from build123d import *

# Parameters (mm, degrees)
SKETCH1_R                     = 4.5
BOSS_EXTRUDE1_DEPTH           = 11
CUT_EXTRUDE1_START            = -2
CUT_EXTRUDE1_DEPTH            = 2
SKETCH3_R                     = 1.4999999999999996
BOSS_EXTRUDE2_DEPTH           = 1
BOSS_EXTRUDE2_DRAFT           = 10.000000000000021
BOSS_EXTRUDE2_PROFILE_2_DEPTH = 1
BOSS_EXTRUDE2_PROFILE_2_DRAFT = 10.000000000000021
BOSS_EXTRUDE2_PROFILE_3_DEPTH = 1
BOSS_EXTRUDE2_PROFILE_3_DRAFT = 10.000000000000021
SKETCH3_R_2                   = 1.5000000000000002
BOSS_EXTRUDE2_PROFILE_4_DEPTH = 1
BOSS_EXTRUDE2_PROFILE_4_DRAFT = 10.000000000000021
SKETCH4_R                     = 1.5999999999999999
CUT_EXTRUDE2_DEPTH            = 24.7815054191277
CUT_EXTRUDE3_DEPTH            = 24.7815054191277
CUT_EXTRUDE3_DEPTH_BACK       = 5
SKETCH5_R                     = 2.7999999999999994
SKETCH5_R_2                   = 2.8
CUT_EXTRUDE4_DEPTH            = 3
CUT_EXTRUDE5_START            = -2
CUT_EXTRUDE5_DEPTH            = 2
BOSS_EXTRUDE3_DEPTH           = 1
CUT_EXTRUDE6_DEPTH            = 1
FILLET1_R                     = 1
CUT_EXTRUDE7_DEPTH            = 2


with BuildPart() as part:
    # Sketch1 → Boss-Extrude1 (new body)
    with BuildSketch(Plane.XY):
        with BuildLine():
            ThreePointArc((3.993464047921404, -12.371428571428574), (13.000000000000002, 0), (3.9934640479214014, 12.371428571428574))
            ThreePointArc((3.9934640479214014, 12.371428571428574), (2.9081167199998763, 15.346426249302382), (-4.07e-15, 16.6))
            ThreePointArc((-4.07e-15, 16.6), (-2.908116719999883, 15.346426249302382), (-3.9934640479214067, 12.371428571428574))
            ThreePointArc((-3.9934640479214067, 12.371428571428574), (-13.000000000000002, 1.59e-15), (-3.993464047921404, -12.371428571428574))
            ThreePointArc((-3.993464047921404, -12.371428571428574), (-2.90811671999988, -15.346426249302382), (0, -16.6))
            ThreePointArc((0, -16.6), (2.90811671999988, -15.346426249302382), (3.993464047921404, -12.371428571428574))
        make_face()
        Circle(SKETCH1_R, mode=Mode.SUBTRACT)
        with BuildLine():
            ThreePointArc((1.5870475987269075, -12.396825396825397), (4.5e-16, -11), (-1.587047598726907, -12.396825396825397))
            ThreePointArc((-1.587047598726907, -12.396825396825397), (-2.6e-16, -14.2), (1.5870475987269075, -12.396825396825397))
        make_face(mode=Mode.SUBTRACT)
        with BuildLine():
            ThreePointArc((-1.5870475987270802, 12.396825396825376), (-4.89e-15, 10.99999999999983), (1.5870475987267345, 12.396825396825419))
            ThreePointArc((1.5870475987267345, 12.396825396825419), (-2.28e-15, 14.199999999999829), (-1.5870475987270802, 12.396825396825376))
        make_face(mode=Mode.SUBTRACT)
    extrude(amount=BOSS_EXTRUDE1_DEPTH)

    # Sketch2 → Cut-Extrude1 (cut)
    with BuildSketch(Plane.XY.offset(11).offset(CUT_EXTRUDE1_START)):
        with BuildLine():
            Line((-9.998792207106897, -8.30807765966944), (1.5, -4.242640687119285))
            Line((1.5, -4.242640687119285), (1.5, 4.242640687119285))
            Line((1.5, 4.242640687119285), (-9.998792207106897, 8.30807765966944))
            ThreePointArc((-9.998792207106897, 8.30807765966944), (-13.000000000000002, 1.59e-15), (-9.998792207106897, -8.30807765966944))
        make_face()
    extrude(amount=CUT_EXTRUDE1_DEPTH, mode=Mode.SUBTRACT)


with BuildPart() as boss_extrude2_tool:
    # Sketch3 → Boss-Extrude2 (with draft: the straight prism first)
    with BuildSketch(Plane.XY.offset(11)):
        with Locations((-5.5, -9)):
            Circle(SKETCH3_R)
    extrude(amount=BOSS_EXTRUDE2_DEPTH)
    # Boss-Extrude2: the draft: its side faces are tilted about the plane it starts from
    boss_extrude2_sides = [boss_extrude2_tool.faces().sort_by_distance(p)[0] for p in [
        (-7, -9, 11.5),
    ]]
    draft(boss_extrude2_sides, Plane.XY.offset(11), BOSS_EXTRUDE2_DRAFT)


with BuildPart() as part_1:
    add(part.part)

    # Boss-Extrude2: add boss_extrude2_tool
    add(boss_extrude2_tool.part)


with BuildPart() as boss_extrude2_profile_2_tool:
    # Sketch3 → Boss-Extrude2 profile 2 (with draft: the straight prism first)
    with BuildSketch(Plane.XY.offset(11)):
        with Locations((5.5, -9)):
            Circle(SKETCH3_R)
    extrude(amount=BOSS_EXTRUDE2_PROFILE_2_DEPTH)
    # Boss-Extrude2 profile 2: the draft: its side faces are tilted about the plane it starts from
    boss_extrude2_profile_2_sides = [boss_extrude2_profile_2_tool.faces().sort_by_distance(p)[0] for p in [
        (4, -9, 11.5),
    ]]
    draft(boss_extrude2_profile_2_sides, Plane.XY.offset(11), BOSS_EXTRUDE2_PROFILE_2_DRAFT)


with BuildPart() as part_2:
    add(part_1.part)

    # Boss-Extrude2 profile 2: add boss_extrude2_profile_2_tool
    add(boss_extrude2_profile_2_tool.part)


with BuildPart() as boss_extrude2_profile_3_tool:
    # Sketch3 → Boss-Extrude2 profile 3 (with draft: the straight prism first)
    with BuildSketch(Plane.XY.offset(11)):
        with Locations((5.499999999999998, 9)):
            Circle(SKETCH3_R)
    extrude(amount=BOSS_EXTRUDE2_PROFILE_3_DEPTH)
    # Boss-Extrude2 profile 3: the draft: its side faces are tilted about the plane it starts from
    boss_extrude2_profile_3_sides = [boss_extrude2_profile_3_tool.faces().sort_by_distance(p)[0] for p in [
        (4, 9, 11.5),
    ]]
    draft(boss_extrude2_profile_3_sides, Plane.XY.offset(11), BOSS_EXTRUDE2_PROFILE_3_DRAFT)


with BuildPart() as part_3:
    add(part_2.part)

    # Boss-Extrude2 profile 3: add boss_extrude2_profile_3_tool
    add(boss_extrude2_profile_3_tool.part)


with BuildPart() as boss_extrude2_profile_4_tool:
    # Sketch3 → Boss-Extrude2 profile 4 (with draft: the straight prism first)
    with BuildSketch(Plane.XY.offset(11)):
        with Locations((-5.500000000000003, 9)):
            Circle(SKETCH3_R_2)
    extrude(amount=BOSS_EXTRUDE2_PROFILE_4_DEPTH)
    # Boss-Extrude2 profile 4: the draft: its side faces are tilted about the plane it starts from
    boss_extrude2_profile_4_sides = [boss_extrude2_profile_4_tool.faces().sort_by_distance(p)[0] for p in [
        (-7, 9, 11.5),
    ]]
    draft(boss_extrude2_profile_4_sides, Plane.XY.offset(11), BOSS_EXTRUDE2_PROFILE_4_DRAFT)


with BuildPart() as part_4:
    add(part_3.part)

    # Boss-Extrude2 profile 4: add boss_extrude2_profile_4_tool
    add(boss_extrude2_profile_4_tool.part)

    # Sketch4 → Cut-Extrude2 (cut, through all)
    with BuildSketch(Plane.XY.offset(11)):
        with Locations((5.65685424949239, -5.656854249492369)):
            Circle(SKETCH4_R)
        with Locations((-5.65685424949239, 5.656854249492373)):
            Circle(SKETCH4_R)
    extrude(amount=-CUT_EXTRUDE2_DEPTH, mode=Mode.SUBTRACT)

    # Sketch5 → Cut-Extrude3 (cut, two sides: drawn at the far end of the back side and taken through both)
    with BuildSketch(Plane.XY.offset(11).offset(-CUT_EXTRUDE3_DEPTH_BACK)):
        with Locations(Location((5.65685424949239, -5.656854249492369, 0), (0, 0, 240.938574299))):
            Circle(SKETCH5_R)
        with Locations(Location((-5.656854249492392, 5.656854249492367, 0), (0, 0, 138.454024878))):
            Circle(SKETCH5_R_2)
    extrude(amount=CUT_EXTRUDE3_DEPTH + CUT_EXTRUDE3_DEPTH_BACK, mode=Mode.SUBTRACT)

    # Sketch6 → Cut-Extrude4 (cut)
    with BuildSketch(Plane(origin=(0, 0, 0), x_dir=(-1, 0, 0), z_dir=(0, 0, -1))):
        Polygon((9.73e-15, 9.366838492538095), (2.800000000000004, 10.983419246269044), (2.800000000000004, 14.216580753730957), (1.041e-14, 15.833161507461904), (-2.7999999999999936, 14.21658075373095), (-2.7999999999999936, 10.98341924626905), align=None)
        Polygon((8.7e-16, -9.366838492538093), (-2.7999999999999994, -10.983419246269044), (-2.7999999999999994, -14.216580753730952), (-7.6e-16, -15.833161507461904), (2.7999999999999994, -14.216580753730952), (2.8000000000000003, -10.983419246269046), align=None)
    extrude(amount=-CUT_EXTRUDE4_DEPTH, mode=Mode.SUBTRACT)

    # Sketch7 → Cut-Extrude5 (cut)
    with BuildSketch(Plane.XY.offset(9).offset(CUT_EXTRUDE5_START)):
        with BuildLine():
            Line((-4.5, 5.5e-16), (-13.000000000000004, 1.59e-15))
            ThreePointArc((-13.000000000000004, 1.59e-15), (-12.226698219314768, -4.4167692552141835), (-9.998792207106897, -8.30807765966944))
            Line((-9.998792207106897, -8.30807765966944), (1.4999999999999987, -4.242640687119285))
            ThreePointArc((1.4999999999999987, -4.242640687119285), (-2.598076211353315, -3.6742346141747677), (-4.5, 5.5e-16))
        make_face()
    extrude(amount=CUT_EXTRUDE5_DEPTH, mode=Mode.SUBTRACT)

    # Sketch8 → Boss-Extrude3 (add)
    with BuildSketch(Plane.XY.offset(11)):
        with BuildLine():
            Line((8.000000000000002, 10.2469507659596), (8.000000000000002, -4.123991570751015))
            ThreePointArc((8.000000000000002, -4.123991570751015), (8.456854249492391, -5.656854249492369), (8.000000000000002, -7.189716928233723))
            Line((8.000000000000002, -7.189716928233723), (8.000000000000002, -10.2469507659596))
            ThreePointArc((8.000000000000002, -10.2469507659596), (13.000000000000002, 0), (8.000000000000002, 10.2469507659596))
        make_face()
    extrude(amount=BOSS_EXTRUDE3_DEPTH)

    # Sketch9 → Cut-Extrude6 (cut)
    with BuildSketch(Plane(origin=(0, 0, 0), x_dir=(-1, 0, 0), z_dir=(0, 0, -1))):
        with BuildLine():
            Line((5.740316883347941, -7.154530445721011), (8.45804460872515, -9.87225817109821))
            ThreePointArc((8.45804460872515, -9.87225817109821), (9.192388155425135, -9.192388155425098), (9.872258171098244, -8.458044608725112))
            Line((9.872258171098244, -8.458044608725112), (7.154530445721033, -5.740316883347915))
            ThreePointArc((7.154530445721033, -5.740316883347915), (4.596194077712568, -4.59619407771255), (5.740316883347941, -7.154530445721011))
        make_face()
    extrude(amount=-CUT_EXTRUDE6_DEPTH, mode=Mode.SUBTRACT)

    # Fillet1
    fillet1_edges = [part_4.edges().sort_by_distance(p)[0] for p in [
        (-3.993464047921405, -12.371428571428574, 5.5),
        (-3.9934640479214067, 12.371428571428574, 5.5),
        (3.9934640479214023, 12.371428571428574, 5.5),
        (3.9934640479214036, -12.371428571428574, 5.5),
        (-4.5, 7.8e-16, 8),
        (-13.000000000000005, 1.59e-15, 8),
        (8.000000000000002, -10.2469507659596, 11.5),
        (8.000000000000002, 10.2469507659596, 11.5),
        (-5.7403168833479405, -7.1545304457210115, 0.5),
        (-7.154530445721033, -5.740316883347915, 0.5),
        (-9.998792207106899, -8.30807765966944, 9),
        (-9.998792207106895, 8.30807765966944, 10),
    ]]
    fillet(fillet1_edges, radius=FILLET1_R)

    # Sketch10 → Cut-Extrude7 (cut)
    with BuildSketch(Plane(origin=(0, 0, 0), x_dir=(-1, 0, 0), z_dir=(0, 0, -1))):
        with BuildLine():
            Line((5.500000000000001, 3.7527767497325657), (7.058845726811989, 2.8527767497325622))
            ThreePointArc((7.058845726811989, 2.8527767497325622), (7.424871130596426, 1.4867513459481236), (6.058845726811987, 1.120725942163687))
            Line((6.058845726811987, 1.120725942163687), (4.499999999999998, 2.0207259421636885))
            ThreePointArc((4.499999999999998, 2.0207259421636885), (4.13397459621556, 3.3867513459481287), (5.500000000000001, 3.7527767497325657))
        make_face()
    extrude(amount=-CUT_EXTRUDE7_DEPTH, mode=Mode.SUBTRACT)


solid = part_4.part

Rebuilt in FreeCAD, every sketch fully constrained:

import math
import FreeCAD as App
import Part
import Sketcher
Q = App.Units.Quantity


def edges_at(feature, points):
    """Names of the edges that pass closest to the given points."""
    edges = feature.Shape.Edges
    near = lambda p: min(range(len(edges)), key=lambda i: edges[i].distToShape(Part.Vertex(*p))[0])
    return sorted({f"Edge{near(p) + 1}" for p in points})


def faces_at(feature, points):
    """Names of the faces that lie closest to the given points."""
    faces = feature.Shape.Faces
    near = lambda p: min(range(len(faces)), key=lambda i: faces[i].distToShape(Part.Vertex(*p))[0])
    return sorted({f"Face{near(p) + 1}" for p in points})


def add_polygon(sketch, points):
    """Adds a closed chain of lines whose ends are joined by coincident constraints."""
    first, n = sketch.GeometryCount, len(points)
    for a, b in zip(points, points[1:] + points[:1]):
        sketch.addGeometry(Part.LineSegment(App.Vector(*a, 0), App.Vector(*b, 0)), False)
    for i in range(n):
        sketch.addConstraint(Sketcher.Constraint("Coincident", first + i, 2, first + (i + 1) % n, 1))

doc = App.newDocument("Part")
body = doc.addObject("PartDesign::Body", "Body")

sketch1 = body.newObject("Sketcher::SketchObject", "Sketch")
sketch1.AttachmentSupport = (doc.getObject("XY_Plane"), [""])
sketch1.MapMode = "FlatFace"
sketch1.addGeometry([
    Part.ArcOfCircle(Part.Circle(App.Vector(0, 0, 0), App.Vector(0, 0, 1), 13), math.radians(-72), math.radians(72)),
    Part.ArcOfCircle(Part.Circle(App.Vector(0, 12.6, 0), App.Vector(0, 0, 1), 4), math.radians(-3), math.radians(183)),
    Part.ArcOfCircle(Part.Circle(App.Vector(0, 0, 0), App.Vector(0, 0, 1), 13), math.radians(108), math.radians(252)),
    Part.ArcOfCircle(Part.Circle(App.Vector(0, -12.6, 0), App.Vector(0, 0, 1), 4), math.radians(177), math.radians(363)),
    Part.Circle(App.Vector(0, -12.6, 0), App.Vector(0, 0, 1), 1.6),
    Part.Circle(App.Vector(0, 12.6, 0), App.Vector(0, 0, 1), 1.6),
    Part.Circle(App.Vector(0, 0, 0), App.Vector(0, 0, 1), 4.5),
], False)
sketch1.addConstraint([
    Sketcher.Constraint("Coincident", 0, 2, 1, 1),
    Sketcher.Constraint("Coincident", 1, 2, 2, 1),
    Sketcher.Constraint("Coincident", 2, 2, 3, 1),
    Sketcher.Constraint("Coincident", 3, 2, 0, 1),
    Sketcher.Constraint("Coincident", 0, 3, -1, 1),
    Sketcher.Constraint("Coincident", 2, 3, -1, 1),
    Sketcher.Constraint("Coincident", 6, 3, -1, 1),
    Sketcher.Constraint("Coincident", 4, 3, 3, 3),
    Sketcher.Constraint("Coincident", 5, 3, 1, 3),
    Sketcher.Constraint("Equal", 0, 2),
    Sketcher.Constraint("Equal", 1, 3),
    Sketcher.Constraint("Equal", 4, 5),
    Sketcher.Constraint("Symmetric", 1, 3, 3, 3, -1, 1),
    Sketcher.Constraint("PointOnObject", 1, 3, -2),
    Sketcher.Constraint("Diameter", 6, Q("9 mm")),
    Sketcher.Constraint("Radius", 0, Q("13 mm")),
    Sketcher.Constraint("Radius", 1, Q("4 mm")),
    Sketcher.Constraint("Diameter", 4, Q("3.2 mm")),
    Sketcher.Constraint("DistanceY", -1, 1, 1, 3, Q("12.6 mm")),
])
pad1 = body.newObject("PartDesign::Pad", "Pad")
pad1.Profile = sketch1
pad1.Length = 11

sketch2 = body.newObject("Sketcher::SketchObject", "Sketch001")
sketch2.AttachmentSupport = (doc.getObject("XY_Plane"), [""])
sketch2.MapMode = "FlatFace"
sketch2.AttachmentOffset = App.Placement(App.Vector(0, 0, 9), App.Rotation())
sketch2.addGeometry([
    Part.LineSegment(App.Vector(-10, -8, 0), App.Vector(2, -4, 0)),
    Part.LineSegment(App.Vector(2, -4, 0), App.Vector(2, 4, 0)),
    Part.LineSegment(App.Vector(2, 4, 0), App.Vector(-10, 8, 0)),
    Part.ArcOfCircle(Part.Circle(App.Vector(0, 0, 0), App.Vector(0, 0, 1), 13), math.radians(140), math.radians(220)),
], False)
sketch2.addConstraint([
    Sketcher.Constraint("Coincident", 0, 2, 1, 1),
    Sketcher.Constraint("Coincident", 1, 2, 2, 1),
    Sketcher.Constraint("Coincident", 2, 2, 3, 1),
    Sketcher.Constraint("Coincident", 3, 2, 0, 1),
    Sketcher.Constraint("Vertical", 1),
    Sketcher.Constraint("Coincident", 3, 3, -1, 1),
    Sketcher.Constraint("Vertical", 2, 2, 3, 2),
    Sketcher.Constraint("Equal", 0, 2),
    Sketcher.Constraint("Radius", 3, Q("13 mm")),
    Sketcher.Constraint("DistanceX", -1, 1, 0, 2, Q("1.5 mm")),
    Sketcher.Constraint("DistanceY", 1, 1, 1, 2, Q("8.485281 mm")),
    Sketcher.Constraint("Distance", 0, Q("12.196311 mm")),
])
pocket1 = body.newObject("PartDesign::Pocket", "Pocket")
pocket1.Profile = sketch2
pocket1.Length = 2
pocket1.Reversed = True
body2 = doc.addObject("PartDesign::Body", "Body001")

sketch3 = body2.newObject("Sketcher::SketchObject", "Sketch002")
sketch3.AttachmentSupport = (doc.getObject("XY_Plane001"), [""])
sketch3.MapMode = "FlatFace"
sketch3.AttachmentOffset = App.Placement(App.Vector(0, 0, 11), App.Rotation())
sketch3.addGeometry(Part.Circle(App.Vector(-5.5, -9, 0), App.Vector(0, 0, 1), 1.5), False)
sketch3.addConstraint([
    Sketcher.Constraint("Diameter", 0, Q("3 mm")),
    Sketcher.Constraint("DistanceY", 0, 3, -1, 1, Q("9 mm")),
    Sketcher.Constraint("DistanceX", 0, 3, -1, 1, Q("5.5 mm")),
])
pad2 = body2.newObject("PartDesign::Pad", "Pad001")
pad2.Profile = sketch3
pad2.Length = 1
doc.recompute()

datumplane = body2.newObject("PartDesign::Plane", "DatumPlane")
datumplane.AttachmentSupport = (doc.getObject("XY_Plane001"), [""])
datumplane.MapMode = "FlatFace"
datumplane.AttachmentOffset = App.Placement(App.Vector(0, 0, 11), App.Rotation())
draft = body2.newObject("PartDesign::Draft", "Draft")
draft.Base = (pad2, faces_at(pad2, [(-7, -9, 11.5)]))
draft.NeutralPlane = (datumplane, [""])
draft.Angle = 10
draft.Reversed = False
doc.recompute()

boolean = body.newObject("PartDesign::Boolean", "Boolean")
boolean.Type = "Fuse"
boolean.addObjects([body2])
body3 = doc.addObject("PartDesign::Body", "Body002")

sketch4 = body3.newObject("Sketcher::SketchObject", "Sketch003")
sketch4.AttachmentSupport = (doc.getObject("XY_Plane002"), [""])
sketch4.MapMode = "FlatFace"
sketch4.AttachmentOffset = App.Placement(App.Vector(0, 0, 11), App.Rotation())
sketch4.addGeometry(Part.Circle(App.Vector(5.5, -9, 0), App.Vector(0, 0, 1), 1.5), False)
sketch4.addConstraint([
    Sketcher.Constraint("Diameter", 0, Q("3 mm")),
    Sketcher.Constraint("DistanceY", 0, 3, -1, 1, Q("9 mm")),
    Sketcher.Constraint("DistanceX", -1, 1, 0, 3, Q("5.5 mm")),
])
pad3 = body3.newObject("PartDesign::Pad", "Pad002")
pad3.Profile = sketch4
pad3.Length = 1
doc.recompute()

datumplane2 = body3.newObject("PartDesign::Plane", "DatumPlane001")
datumplane2.AttachmentSupport = (doc.getObject("XY_Plane002"), [""])
datumplane2.MapMode = "FlatFace"
datumplane2.AttachmentOffset = App.Placement(App.Vector(0, 0, 11), App.Rotation())
draft2 = body3.newObject("PartDesign::Draft", "Draft001")
draft2.Base = (pad3, faces_at(pad3, [(4, -9, 11.5)]))
draft2.NeutralPlane = (datumplane2, [""])
draft2.Angle = 10
draft2.Reversed = False
doc.recompute()

boolean2 = body.newObject("PartDesign::Boolean", "Boolean001")
boolean2.Type = "Fuse"
boolean2.addObjects([body3])
body4 = doc.addObject("PartDesign::Body", "Body003")

sketch5 = body4.newObject("Sketcher::SketchObject", "Sketch004")
sketch5.AttachmentSupport = (doc.getObject("XY_Plane003"), [""])
sketch5.MapMode = "FlatFace"
sketch5.AttachmentOffset = App.Placement(App.Vector(0, 0, 11), App.Rotation())
sketch5.addGeometry(Part.Circle(App.Vector(5.5, 9, 0), App.Vector(0, 0, 1), 1.5), False)
sketch5.addConstraint([
    Sketcher.Constraint("Diameter", 0, Q("3 mm")),
    Sketcher.Constraint("DistanceY", -1, 1, 0, 3, Q("9 mm")),
    Sketcher.Constraint("DistanceX", -1, 1, 0, 3, Q("5.5 mm")),
])
pad4 = body4.newObject("PartDesign::Pad", "Pad003")
pad4.Profile = sketch5
pad4.Length = 1
doc.recompute()

datumplane3 = body4.newObject("PartDesign::Plane", "DatumPlane002")
datumplane3.AttachmentSupport = (doc.getObject("XY_Plane003"), [""])
datumplane3.MapMode = "FlatFace"
datumplane3.AttachmentOffset = App.Placement(App.Vector(0, 0, 11), App.Rotation())
draft3 = body4.newObject("PartDesign::Draft", "Draft002")
draft3.Base = (pad4, faces_at(pad4, [(4, 9, 11.5)]))
draft3.NeutralPlane = (datumplane3, [""])
draft3.Angle = 10
draft3.Reversed = False
doc.recompute()

boolean3 = body.newObject("PartDesign::Boolean", "Boolean002")
boolean3.Type = "Fuse"
boolean3.addObjects([body4])
body5 = doc.addObject("PartDesign::Body", "Body004")

sketch6 = body5.newObject("Sketcher::SketchObject", "Sketch005")
sketch6.AttachmentSupport = (doc.getObject("XY_Plane004"), [""])
sketch6.MapMode = "FlatFace"
sketch6.AttachmentOffset = App.Placement(App.Vector(0, 0, 11), App.Rotation())
sketch6.addGeometry(Part.Circle(App.Vector(-5.5, 9, 0), App.Vector(0, 0, 1), 1.5), False)
sketch6.addConstraint([
    Sketcher.Constraint("Diameter", 0, Q("3 mm")),
    Sketcher.Constraint("DistanceY", -1, 1, 0, 3, Q("9 mm")),
    Sketcher.Constraint("DistanceX", 0, 3, -1, 1, Q("5.5 mm")),
])
pad5 = body5.newObject("PartDesign::Pad", "Pad004")
pad5.Profile = sketch6
pad5.Length = 1
doc.recompute()

datumplane4 = body5.newObject("PartDesign::Plane", "DatumPlane003")
datumplane4.AttachmentSupport = (doc.getObject("XY_Plane004"), [""])
datumplane4.MapMode = "FlatFace"
datumplane4.AttachmentOffset = App.Placement(App.Vector(0, 0, 11), App.Rotation())
draft4 = body5.newObject("PartDesign::Draft", "Draft003")
draft4.Base = (pad5, faces_at(pad5, [(-7, 9, 11.5)]))
draft4.NeutralPlane = (datumplane4, [""])
draft4.Angle = 10
draft4.Reversed = False
doc.recompute()

boolean4 = body.newObject("PartDesign::Boolean", "Boolean003")
boolean4.Type = "Fuse"
boolean4.addObjects([body5])

sketch7 = body.newObject("Sketcher::SketchObject", "Sketch006")
sketch7.AttachmentSupport = (doc.getObject("XY_Plane"), [""])
sketch7.MapMode = "FlatFace"
sketch7.AttachmentOffset = App.Placement(App.Vector(0, 0, 11), App.Rotation())
sketch7.addGeometry([
    Part.Circle(App.Vector(5.7, -5.7, 0), App.Vector(0, 0, 1), 1.6),
    Part.Circle(App.Vector(-5.7, 5.7, 0), App.Vector(0, 0, 1), 1.6),
], False)
sketch7.addConstraint([
    Sketcher.Constraint("Equal", 0, 1),
    Sketcher.Constraint("Symmetric", 0, 3, 1, 3, -1, 1),
    Sketcher.Constraint("Diameter", 0, Q("3.2 mm")),
    Sketcher.Constraint("DistanceX", 1, 3, 0, 3, Q("11.313708 mm")),
    Sketcher.Constraint("DistanceY", 0, 3, 1, 3, Q("11.313708 mm")),
])
pocket2 = body.newObject("PartDesign::Pocket", "Pocket001")
pocket2.Profile = sketch7
pocket2.Type = "ThroughAll"

sketch8 = body.newObject("Sketcher::SketchObject", "Sketch007")
sketch8.AttachmentSupport = (doc.getObject("XY_Plane"), [""])
sketch8.MapMode = "FlatFace"
sketch8.AttachmentOffset = App.Placement(App.Vector(0, 0, 11), App.Rotation())
sketch8.addGeometry([
    Part.Circle(App.Vector(5.7, -5.7, 0), App.Vector(0, 0, 1), 2.8),
    Part.Circle(App.Vector(-5.7, 5.7, 0), App.Vector(0, 0, 1), 2.8),
], False)
sketch8.addConstraint([
    Sketcher.Constraint("Equal", 0, 1),
    Sketcher.Constraint("Symmetric", 0, 3, 1, 3, -1, 1),
    Sketcher.Constraint("Diameter", 0, Q("5.6 mm")),
    Sketcher.Constraint("DistanceX", 1, 3, 0, 3, Q("11.313708 mm")),
    Sketcher.Constraint("DistanceY", 0, 3, 1, 3, Q("11.313708 mm")),
])
pocket3 = body.newObject("PartDesign::Pocket", "Pocket002")
pocket3.Profile = sketch8
pocket3.Type = "TwoLengths"
pocket3.Length = 24.781505
pocket3.Length2 = 5
pocket3.Reversed = True

sketch9 = body.newObject("Sketcher::SketchObject", "Sketch008")
sketch9.AttachmentSupport = (doc.getObject("XY_Plane"), [""])
sketch9.MapMode = "FlatFace"
add_polygon(sketch9, [(0, 9.4), (-2.8, 11), (-2.8, 14.2), (0, 15.8), (2.8, 14.2), (2.8, 11)])
add_polygon(sketch9, [(0, -9.4), (2.8, -11), (2.8, -14.2), (0, -15.8), (-2.8, -14.2), (-2.8, -11)])
sketch9.addConstraint([
    Sketcher.Constraint("Vertical", 1),
    Sketcher.Constraint("Vertical", 4),
    Sketcher.Constraint("Vertical", 7),
    Sketcher.Constraint("Vertical", 10),
    Sketcher.Constraint("Symmetric", 0, 2, 6, 2, -1, 1),
    Sketcher.Constraint("Symmetric", 2, 2, 8, 2, -1, 1),
    Sketcher.Constraint("Symmetric", 3, 2, 9, 2, -1, 1),
    Sketcher.Constraint("Symmetric", 5, 2, 11, 2, -1, 1),
    Sketcher.Constraint("Symmetric", 1, 2, 3, 2, -2),
    Sketcher.Constraint("PointOnObject", 2, 2, -2),
    Sketcher.Constraint("PointOnObject", 5, 2, -2),
    Sketcher.Constraint("Parallel", 0, 3),
    Sketcher.Constraint("Parallel", 2, 5),
    Sketcher.Constraint("Parallel", 5, 8),
    Sketcher.Constraint("Parallel", 8, 11),
    Sketcher.Constraint("Angle", 0, Q("150 deg")),
    Sketcher.Constraint("DistanceX", 0, 2, -1, 1, Q("2.8 mm")),
    Sketcher.Constraint("DistanceY", 6, 2, 3, 2, Q("25.2 mm")),
    Sketcher.Constraint("DistanceY", 1, 1, 1, 2, Q("3.233162 mm")),
])
pocket4 = body.newObject("PartDesign::Pocket", "Pocket003")
pocket4.Profile = sketch9
pocket4.Length = 3
pocket4.Reversed = True

sketch10 = body.newObject("Sketcher::SketchObject", "Sketch009")
sketch10.AttachmentSupport = (doc.getObject("XY_Plane"), [""])
sketch10.MapMode = "FlatFace"
sketch10.AttachmentOffset = App.Placement(App.Vector(0, 0, 7), App.Rotation())
sketch10.addGeometry([
    Part.LineSegment(App.Vector(-4.5, 0, 0), App.Vector(-13, 0, 0)),
    Part.ArcOfCircle(Part.Circle(App.Vector(0, 0, 0), App.Vector(0, 0, 1), 13), math.radians(180), math.radians(220)),
    Part.LineSegment(App.Vector(-10, -8.3, 0), App.Vector(1.5, -4.2, 0)),
    Part.ArcOfCircle(Part.Circle(App.Vector(0, 0, 0), App.Vector(0, 0, 1), 4.5), math.radians(180), math.radians(289)),
], False)
sketch10.addConstraint([
    Sketcher.Constraint("Coincident", 0, 2, 1, 1),
    Sketcher.Constraint("Coincident", 1, 2, 2, 1),
    Sketcher.Constraint("Tangent", 2, 2, 3, 2),
    Sketcher.Constraint("Coincident", 3, 1, 0, 1),
    Sketcher.Constraint("Horizontal", 0),
    Sketcher.Constraint("Coincident", 1, 3, -1, 1),
    Sketcher.Constraint("Coincident", 3, 3, -1, 1),
    Sketcher.Constraint("PointOnObject", 0, 2, -1),
    Sketcher.Constraint("Radius", 1, Q("13 mm")),
    Sketcher.Constraint("Radius", 3, Q("4.5 mm")),
    Sketcher.Constraint("DistanceX", 3, 1, 2, 2, Q("6 mm")),
])
pocket5 = body.newObject("PartDesign::Pocket", "Pocket004")
pocket5.Profile = sketch10
pocket5.Length = 2
pocket5.Reversed = True

sketch11 = body.newObject("Sketcher::SketchObject", "Sketch010")
sketch11.AttachmentSupport = (doc.getObject("XY_Plane"), [""])
sketch11.MapMode = "FlatFace"
sketch11.AttachmentOffset = App.Placement(App.Vector(0, 0, 11), App.Rotation())
sketch11.addGeometry([
    Part.LineSegment(App.Vector(8, 10.2, 0), App.Vector(8, -4.1, 0)),
    Part.ArcOfCircle(Part.Circle(App.Vector(5.7, -5.7, 0), App.Vector(0, 0, 1), 2.8), math.radians(-33), math.radians(33)),
    Part.LineSegment(App.Vector(8, -7.2, 0), App.Vector(8, -10.2, 0)),
    Part.ArcOfCircle(Part.Circle(App.Vector(0, 0, 0), App.Vector(0, 0, 1), 13), math.radians(-52), math.radians(52)),
], False)
sketch11.addConstraint([
    Sketcher.Constraint("Coincident", 0, 2, 1, 2),
    Sketcher.Constraint("Coincident", 1, 1, 2, 1),
    Sketcher.Constraint("Coincident", 2, 2, 3, 1),
    Sketcher.Constraint("Coincident", 3, 2, 0, 1),
    Sketcher.Constraint("Vertical", 0),
    Sketcher.Constraint("Vertical", 2),
    Sketcher.Constraint("Coincident", 3, 3, -1, 1),
    Sketcher.Constraint("Vertical", 0, 2, 1, 1),
    Sketcher.Constraint("Radius", 3, Q("13 mm")),
    Sketcher.Constraint("Radius", 1, Q("2.8 mm")),
    Sketcher.Constraint("DistanceX", -1, 1, 0, 2, Q("8 mm")),
    Sketcher.Constraint("DistanceY", 0, 2, 0, 1, Q("14.370942 mm")),
    Sketcher.Constraint("DistanceY", 2, 2, 2, 1, Q("3.057234 mm")),
])
pad6 = body.newObject("PartDesign::Pad", "Pad005")
pad6.Profile = sketch11
pad6.Length = 1

sketch12 = body.newObject("Sketcher::SketchObject", "Sketch011")
sketch12.AttachmentSupport = (doc.getObject("XY_Plane"), [""])
sketch12.MapMode = "FlatFace"
sketch12.addGeometry([
    Part.LineSegment(App.Vector(-5.7, -7.2, 0), App.Vector(-8.5, -9.9, 0)),
    Part.ArcOfCircle(Part.Circle(App.Vector(0, 0, 0), App.Vector(0, 0, 1), 13), math.radians(-139.41), math.radians(-130.59)),
    Part.LineSegment(App.Vector(-9.9, -8.5, 0), App.Vector(-7.2, -5.7, 0)),
    Part.ArcOfCircle(Part.Circle(App.Vector(-5.7, -5.7, 0), App.Vector(0, 0, 1), 1.5), math.radians(-93), math.radians(183)),
], False)
sketch12.addConstraint([
    Sketcher.Constraint("Coincident", 0, 2, 1, 2),
    Sketcher.Constraint("Coincident", 1, 1, 2, 1),
    Sketcher.Constraint("Coincident", 2, 2, 3, 2),
    Sketcher.Constraint("Coincident", 3, 1, 0, 1),
    Sketcher.Constraint("Coincident", 1, 3, -1, 1),
    Sketcher.Constraint("Parallel", 0, 2),
    Sketcher.Constraint("Equal", 0, 2),
    Sketcher.Constraint("Radius", 1, Q("13 mm")),
    Sketcher.Constraint("Radius", 3, Q("1.5 mm")),
    Sketcher.Constraint("Angle", 0, Q("-135 deg")),
    Sketcher.Constraint("DistanceY", 0, 2, -1, 1, Q("9.872258 mm")),
    Sketcher.Constraint("DistanceX", 1, 1, -1, 1, Q("9.872258 mm")),
    Sketcher.Constraint("DistanceX", 2, 2, -1, 1, Q("7.15453 mm")),
])
pocket6 = body.newObject("PartDesign::Pocket", "Pocket005")
pocket6.Profile = sketch12
pocket6.Length = 1
pocket6.Reversed = True
doc.recompute()

fillet = body.newObject("PartDesign::Fillet", "Fillet")
fillet.Base = (pocket6, edges_at(pocket6, [
    (-3.993, -12.371, 5.5),
    (-3.993, 12.371, 5.5),
    (3.993, 12.371, 5.5),
    (3.993, -12.371, 5.5),
    (-4.5, 0, 8),
    (-13, 0, 8),
    (8, -10.247, 11.5),
    (8, 10.247, 11.5),
    (-5.74, -7.155, 0.5),
    (-7.155, -5.74, 0.5),
    (-9.999, -8.308, 9),
    (-9.999, 8.308, 10),
]))
fillet.Radius = 1

sketch13 = body.newObject("Sketcher::SketchObject", "Sketch012")
sketch13.AttachmentSupport = (doc.getObject("XY_Plane"), [""])
sketch13.MapMode = "FlatFace"
sketch13.addGeometry([
    Part.LineSegment(App.Vector(-7.1, 2.9, 0), App.Vector(-5.5, 3.8, 0)),
    Part.ArcOfCircle(Part.Circle(App.Vector(-5, 2.9, 0), App.Vector(0, 0, 1), 1), math.radians(-60), math.radians(120)),
    Part.LineSegment(App.Vector(-4.5, 2, 0), App.Vector(-6.1, 1.1, 0)),
    Part.ArcOfCircle(Part.Circle(App.Vector(-6.6, 2, 0), App.Vector(0, 0, 1), 1), math.radians(120), math.radians(300)),
], False)
sketch13.addConstraint([
    Sketcher.Constraint("Tangent", 0, 2, 1, 2),
    Sketcher.Constraint("Tangent", 1, 1, 2, 1),
    Sketcher.Constraint("Tangent", 2, 2, 3, 2),
    Sketcher.Constraint("Tangent", 3, 1, 0, 1),
    Sketcher.Constraint("Equal", 1, 3),
    Sketcher.Constraint("Radius", 1, Q("1 mm")),
    Sketcher.Constraint("Angle", 0, Q("30 deg")),
    Sketcher.Constraint("DistanceX", 1, 3, -1, 1, Q("5 mm")),
    Sketcher.Constraint("Distance", 0, Q("1.8 mm")),
    Sketcher.Constraint("DistanceY", -1, 1, 1, 3, Q("2.886751 mm")),
])
pocket7 = body.newObject("PartDesign::Pocket", "Pocket006")
pocket7.Profile = sketch13
pocket7.Length = 2
pocket7.Reversed = True

doc.recompute()
